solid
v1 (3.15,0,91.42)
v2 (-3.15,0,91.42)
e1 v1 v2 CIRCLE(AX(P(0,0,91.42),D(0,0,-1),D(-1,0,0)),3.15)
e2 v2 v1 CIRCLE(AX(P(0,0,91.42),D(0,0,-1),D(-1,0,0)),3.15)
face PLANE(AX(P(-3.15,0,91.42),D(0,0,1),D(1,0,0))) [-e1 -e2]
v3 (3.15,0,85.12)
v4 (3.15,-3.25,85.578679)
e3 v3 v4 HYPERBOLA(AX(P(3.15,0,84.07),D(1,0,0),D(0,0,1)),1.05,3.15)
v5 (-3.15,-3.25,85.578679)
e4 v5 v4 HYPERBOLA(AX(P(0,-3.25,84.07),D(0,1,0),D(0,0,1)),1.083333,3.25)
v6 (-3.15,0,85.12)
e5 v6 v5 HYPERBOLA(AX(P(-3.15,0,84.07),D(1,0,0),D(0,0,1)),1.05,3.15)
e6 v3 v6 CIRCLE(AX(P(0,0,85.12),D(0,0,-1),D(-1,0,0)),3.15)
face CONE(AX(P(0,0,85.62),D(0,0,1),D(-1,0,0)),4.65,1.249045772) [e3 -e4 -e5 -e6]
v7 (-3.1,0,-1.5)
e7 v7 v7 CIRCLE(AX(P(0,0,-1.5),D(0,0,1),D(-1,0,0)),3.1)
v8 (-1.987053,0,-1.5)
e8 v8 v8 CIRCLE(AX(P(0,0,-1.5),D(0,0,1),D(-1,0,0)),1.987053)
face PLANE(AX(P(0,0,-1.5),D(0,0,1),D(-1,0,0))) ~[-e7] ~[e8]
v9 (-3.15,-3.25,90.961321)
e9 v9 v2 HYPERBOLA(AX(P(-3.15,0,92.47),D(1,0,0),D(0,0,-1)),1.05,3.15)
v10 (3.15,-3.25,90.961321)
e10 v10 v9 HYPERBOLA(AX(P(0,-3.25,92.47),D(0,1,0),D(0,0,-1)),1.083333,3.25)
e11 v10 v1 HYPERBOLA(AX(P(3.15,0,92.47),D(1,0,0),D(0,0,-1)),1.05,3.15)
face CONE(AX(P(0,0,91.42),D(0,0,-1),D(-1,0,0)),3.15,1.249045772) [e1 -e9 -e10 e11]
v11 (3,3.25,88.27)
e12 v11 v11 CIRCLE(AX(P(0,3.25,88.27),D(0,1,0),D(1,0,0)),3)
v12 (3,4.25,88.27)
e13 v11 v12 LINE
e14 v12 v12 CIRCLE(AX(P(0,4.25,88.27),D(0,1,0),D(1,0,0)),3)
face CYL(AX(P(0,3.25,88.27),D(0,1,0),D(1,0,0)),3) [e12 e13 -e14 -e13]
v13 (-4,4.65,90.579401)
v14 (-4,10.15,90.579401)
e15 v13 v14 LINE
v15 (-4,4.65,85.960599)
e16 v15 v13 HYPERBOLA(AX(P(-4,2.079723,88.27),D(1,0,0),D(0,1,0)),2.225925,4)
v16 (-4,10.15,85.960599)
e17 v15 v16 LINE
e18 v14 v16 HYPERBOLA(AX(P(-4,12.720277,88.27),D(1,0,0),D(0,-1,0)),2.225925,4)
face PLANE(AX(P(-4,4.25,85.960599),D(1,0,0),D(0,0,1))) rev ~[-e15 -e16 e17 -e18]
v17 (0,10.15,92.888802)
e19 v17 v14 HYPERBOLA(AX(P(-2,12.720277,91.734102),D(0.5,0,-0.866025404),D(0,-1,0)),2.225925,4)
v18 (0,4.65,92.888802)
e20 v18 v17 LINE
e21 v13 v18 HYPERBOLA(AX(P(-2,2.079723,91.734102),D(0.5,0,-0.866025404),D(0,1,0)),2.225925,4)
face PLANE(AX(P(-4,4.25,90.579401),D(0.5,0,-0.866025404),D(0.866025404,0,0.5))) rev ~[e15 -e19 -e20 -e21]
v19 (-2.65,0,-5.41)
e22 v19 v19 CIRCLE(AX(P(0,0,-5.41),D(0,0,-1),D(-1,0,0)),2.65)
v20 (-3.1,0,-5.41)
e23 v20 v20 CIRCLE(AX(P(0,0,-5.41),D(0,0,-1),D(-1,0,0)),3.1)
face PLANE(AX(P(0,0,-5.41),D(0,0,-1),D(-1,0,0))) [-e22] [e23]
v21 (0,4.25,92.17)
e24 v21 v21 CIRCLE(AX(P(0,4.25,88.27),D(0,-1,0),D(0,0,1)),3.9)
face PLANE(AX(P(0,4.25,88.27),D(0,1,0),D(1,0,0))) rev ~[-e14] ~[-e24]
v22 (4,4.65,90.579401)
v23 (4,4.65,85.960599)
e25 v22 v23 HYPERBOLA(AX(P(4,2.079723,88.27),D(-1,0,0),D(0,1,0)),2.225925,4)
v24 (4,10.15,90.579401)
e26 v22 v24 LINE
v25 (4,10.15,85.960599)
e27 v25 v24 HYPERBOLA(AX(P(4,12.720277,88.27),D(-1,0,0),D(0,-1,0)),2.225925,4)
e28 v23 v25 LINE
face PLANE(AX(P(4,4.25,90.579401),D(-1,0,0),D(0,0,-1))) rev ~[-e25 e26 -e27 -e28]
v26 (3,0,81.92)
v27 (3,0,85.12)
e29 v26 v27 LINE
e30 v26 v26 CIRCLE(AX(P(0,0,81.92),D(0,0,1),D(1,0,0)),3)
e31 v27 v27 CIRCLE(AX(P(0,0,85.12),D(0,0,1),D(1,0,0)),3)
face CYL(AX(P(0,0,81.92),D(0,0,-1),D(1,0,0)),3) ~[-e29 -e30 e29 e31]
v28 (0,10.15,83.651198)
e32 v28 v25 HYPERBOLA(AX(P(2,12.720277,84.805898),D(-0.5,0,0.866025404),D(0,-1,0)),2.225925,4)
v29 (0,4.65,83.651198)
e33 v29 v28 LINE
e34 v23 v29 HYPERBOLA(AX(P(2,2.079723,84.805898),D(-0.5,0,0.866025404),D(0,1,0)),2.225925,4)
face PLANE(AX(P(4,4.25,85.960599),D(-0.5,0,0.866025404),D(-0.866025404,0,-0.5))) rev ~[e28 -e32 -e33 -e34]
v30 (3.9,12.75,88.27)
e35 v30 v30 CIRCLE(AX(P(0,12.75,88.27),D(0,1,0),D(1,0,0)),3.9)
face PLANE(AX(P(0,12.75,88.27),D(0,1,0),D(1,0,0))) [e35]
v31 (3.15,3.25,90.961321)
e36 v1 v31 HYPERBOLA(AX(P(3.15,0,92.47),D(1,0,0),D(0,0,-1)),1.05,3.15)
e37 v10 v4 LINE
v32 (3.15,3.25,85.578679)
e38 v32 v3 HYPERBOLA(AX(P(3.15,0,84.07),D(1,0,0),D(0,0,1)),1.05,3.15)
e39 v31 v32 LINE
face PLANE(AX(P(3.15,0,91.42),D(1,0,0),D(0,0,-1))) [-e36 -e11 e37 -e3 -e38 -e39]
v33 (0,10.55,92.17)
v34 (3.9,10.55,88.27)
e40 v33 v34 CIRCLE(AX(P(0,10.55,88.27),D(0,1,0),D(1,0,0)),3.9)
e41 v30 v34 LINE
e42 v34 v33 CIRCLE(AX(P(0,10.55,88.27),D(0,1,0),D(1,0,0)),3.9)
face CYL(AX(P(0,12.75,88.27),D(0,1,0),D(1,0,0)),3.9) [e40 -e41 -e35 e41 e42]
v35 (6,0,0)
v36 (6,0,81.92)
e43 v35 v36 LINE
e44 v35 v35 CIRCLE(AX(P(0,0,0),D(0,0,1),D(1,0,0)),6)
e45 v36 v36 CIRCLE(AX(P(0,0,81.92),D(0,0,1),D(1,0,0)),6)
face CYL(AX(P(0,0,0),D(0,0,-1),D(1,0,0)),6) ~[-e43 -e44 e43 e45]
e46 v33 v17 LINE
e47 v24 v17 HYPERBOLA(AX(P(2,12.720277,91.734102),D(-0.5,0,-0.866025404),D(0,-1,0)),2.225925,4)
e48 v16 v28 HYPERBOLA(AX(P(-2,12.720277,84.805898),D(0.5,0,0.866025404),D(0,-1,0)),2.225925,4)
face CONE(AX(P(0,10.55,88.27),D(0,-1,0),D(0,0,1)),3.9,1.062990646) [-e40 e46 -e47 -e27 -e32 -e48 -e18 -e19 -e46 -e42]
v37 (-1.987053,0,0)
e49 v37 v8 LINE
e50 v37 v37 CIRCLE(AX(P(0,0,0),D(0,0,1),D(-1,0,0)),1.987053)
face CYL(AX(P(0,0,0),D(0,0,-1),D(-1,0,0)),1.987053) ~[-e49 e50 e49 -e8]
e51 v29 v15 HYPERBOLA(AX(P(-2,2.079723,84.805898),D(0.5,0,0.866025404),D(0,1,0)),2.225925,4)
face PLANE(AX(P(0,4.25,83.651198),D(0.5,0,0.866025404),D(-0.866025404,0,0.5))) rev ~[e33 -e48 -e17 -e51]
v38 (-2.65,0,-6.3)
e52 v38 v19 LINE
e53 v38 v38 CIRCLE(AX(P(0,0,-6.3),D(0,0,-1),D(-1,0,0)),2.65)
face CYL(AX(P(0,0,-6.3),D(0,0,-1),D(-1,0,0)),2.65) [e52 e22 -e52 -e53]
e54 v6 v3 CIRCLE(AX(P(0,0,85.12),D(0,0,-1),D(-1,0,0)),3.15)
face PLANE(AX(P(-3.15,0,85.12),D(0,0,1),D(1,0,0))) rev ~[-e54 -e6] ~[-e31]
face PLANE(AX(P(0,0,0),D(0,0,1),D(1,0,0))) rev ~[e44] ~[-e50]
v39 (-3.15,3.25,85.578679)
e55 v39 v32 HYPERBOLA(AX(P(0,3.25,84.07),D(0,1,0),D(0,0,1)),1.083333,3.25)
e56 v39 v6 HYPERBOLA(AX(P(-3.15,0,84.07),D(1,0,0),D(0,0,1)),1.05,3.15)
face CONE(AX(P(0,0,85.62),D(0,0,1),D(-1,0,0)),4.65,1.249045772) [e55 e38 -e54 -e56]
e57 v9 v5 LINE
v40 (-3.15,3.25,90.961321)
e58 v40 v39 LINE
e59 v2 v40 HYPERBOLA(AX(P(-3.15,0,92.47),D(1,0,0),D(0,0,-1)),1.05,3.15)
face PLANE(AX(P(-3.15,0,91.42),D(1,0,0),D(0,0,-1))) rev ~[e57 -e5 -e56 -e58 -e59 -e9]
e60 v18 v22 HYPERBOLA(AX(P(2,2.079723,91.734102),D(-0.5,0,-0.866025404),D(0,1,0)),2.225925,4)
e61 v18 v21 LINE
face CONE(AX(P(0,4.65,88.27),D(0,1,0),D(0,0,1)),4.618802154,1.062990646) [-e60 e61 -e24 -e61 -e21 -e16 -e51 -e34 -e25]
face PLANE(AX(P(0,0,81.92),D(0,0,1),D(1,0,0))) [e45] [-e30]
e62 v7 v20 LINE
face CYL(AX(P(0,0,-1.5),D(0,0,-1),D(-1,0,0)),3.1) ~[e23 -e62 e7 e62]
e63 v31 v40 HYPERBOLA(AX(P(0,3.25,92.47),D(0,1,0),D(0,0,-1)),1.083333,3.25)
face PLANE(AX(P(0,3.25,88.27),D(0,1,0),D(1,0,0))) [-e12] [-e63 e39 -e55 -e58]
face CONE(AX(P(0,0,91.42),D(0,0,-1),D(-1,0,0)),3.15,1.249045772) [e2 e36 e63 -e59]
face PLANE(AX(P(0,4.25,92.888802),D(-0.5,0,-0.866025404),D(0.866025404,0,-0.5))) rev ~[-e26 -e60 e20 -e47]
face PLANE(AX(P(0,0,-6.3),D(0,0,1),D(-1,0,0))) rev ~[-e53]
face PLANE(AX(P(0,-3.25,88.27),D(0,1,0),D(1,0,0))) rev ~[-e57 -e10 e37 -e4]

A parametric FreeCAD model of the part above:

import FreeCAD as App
import Part
import Sketcher
Q = App.Units.Quantity

doc = App.newDocument("Part")
params = doc.addObject("Spreadsheet::Sheet", "Params")
for row, (alias, value) in enumerate([
    ("sketch1_diameter", "12 mm"),
    ("pad1_length", "81.92 mm"),
    ("sketch2_width", "3.1 mm"),
    ("sketch2_height", "1.5 mm"),
    ("sketch2_height2", "6.3 mm"),
    ("revolution_angle", "360 deg"),
    ("sketch3_diameter", "6 mm"),
    ("pad2_length", "3.2 mm"),
    ("sketch4_width", "6.3 mm"),
    ("pad3_length", "6.5 mm"),
    ("sketch5_width", "1.5 mm"),
    ("sketch5_height", "0.5 mm"),
    ("groove_angle", "360 deg"),
    ("sketch6_diameter", "6 mm"),
    ("pad4_length", "2 mm"),
    ("pad5_length", "8.5 mm"),
    ("sketch8_diameter", "7.8 mm"),
    ("pocket1_length", "2.2 mm"),
    ("sketch9_width", "0.4 mm"),
    ("sketch9_width2", "6.3 mm"),
    ("groove2_angle", "360 deg"),
    ("sketch10_diameter", "5.3 mm"),
    ("pocket2_length", "0.89 mm"),
], start=1):
    params.set(f"A{row}", alias)
    params.set(f"B{row}", "=" + value)
    params.setAlias(f"B{row}", alias)

body = doc.addObject("PartDesign::Body", "Body")

# Sketch on XY plane
sketch1 = doc.addObject("Sketcher::SketchObject", "Sketch")
body.addObject(sketch1)
sketch1.AttachmentSupport = (doc.XY_Plane, [""])
sketch1.MapMode = "FlatFace"
sketch1.addGeometry(Part.Circle(App.Vector(0, 0, 0), App.Vector(0, 0, 1), 6), False)
sketch1.addConstraint([
    Sketcher.Constraint("Coincident", 0, 3, -1, 1),
    Sketcher.Constraint("Diameter", 0, Q("12 mm")),
])
sketch1.setExpression("Constraints[1]", "Params.sketch1_diameter")
pad1 = doc.addObject("PartDesign::Pad", "Pad")
body.addObject(pad1)
pad1.Profile = sketch1
pad1.setExpression("Length", "Params.pad1_length")

# Sketch on XZ plane
sketch2 = doc.addObject("Sketcher::SketchObject", "Sketch001")
body.addObject(sketch2)
sketch2.AttachmentSupport = (doc.XZ_Plane, [""])
sketch2.MapMode = "FlatFace"
sketch2.addGeometry([
    Part.LineSegment(App.Vector(-1.987053, -1.5, 0), App.Vector(-1.987053, 0, 0)),  # 0
    Part.LineSegment(App.Vector(-1.987053, 0, 0), App.Vector(0, 0, 0)),  # 1
    Part.LineSegment(App.Vector(0, 0, 0), App.Vector(0, -6.3, 0)),  # 2
    Part.LineSegment(App.Vector(0, -6.3, 0), App.Vector(-3.1, -6.3, 0)),  # 3
    Part.LineSegment(App.Vector(-3.1, -6.3, 0), App.Vector(-3.1, -1.5, 0)),  # 4
    Part.LineSegment(App.Vector(-3.1, -1.5, 0), App.Vector(-1.987053, -1.5, 0)),  # 5
], False)
sketch2.addConstraint([
    Sketcher.Constraint("Coincident", 0, 2, 1, 1),
    Sketcher.Constraint("Coincident", 1, 2, 2, 1),
    Sketcher.Constraint("Coincident", 2, 2, 3, 1),
    Sketcher.Constraint("Coincident", 3, 2, 4, 1),
    Sketcher.Constraint("Coincident", 4, 2, 5, 1),
    Sketcher.Constraint("Coincident", 5, 2, 0, 1),
    Sketcher.Constraint("Vertical", 0),
    Sketcher.Constraint("Horizontal", 1),
    Sketcher.Constraint("Vertical", 2),
    Sketcher.Constraint("Horizontal", 3),
    Sketcher.Constraint("Vertical", 4),
    Sketcher.Constraint("Horizontal", 5),
    Sketcher.Constraint("Coincident", 1, 2, -1, 1),
    Sketcher.Constraint("DistanceX", 3, 2, 3, 1, Q("3.1 mm")),
    Sketcher.Constraint("DistanceY", 0, 1, 0, 2, Q("1.5 mm")),
    Sketcher.Constraint("DistanceY", 2, 2, 2, 1, Q("6.3 mm")),
    Sketcher.Constraint("DistanceX", 1, 1, 1, 2, Q("1.987053 mm")),
])
sketch2.setExpression("Constraints[13]", "Params.sketch2_width")
sketch2.setExpression("Constraints[14]", "Params.sketch2_height")
sketch2.setExpression("Constraints[15]", "Params.sketch2_height2")
revolution = doc.addObject("PartDesign::Revolution", "Revolution")
body.addObject(revolution)
revolution.Profile = sketch2
revolution.ReferenceAxis = (sketch2, ["V_Axis"])
revolution.setExpression("Angle", "Params.revolution_angle")

# Sketch on XY plane
sketch3 = doc.addObject("Sketcher::SketchObject", "Sketch002")
body.addObject(sketch3)
sketch3.AttachmentSupport = (doc.XY_Plane, [""])
sketch3.MapMode = "FlatFace"
sketch3.AttachmentOffset = App.Placement(App.Vector(0, 0, 81.92), App.Rotation())
sketch3.addGeometry(Part.Circle(App.Vector(0, 0, 0), App.Vector(0, 0, 1), 3), False)
sketch3.addConstraint([
    Sketcher.Constraint("Coincident", 0, 3, -1, 1),
    Sketcher.Constraint("Diameter", 0, Q("6 mm")),
])
sketch3.setExpression("Constraints[1]", "Params.sketch3_diameter")
pad2 = doc.addObject("PartDesign::Pad", "Pad001")
body.addObject(pad2)
pad2.Profile = sketch3
pad2.setExpression("Length", "Params.pad2_length")

# Sketch on XZ plane
sketch4 = doc.addObject("Sketcher::SketchObject", "Sketch003")
body.addObject(sketch4)
sketch4.AttachmentSupport = (doc.XZ_Plane, [""])
sketch4.MapMode = "FlatFace"
sketch4.addGeometry([
    Part.LineSegment(App.Vector(-3.15, 85.12, 0), App.Vector(-3.15, 91.42, 0)),
    Part.LineSegment(App.Vector(-3.15, 91.42, 0), App.Vector(3.15, 91.42, 0)),
    Part.LineSegment(App.Vector(3.15, 91.42, 0), App.Vector(3.15, 85.12, 0)),
    Part.LineSegment(App.Vector(3.15, 85.12, 0), App.Vector(-3.15, 85.12, 0)),
], False)
sketch4.addConstraint([
    Sketcher.Constraint("Coincident", 0, 2, 1, 1),
    Sketcher.Constraint("Coincident", 1, 2, 2, 1),
    Sketcher.Constraint("Coincident", 2, 2, 3, 1),
    Sketcher.Constraint("Coincident", 3, 2, 0, 1),
    Sketcher.Constraint("Vertical", 0),
    Sketcher.Constraint("Horizontal", 1),
    Sketcher.Constraint("Vertical", 2),
    Sketcher.Constraint("Horizontal", 3),
    Sketcher.Constraint("Equal", 3, 0),
    Sketcher.Constraint("DistanceX", 1, 1, 1, 2, Q("6.3 mm")),
    Sketcher.Constraint("DistanceX", 0, 2, -1, 1, Q("3.15 mm")),
    Sketcher.Constraint("DistanceY", -1, 1, 0, 2, Q("91.42 mm")),
])
sketch4.setExpression("Constraints[9]", "Params.sketch4_width")
pad3 = doc.addObject("PartDesign::Pad", "Pad002")
body.addObject(pad3)
pad3.Profile = sketch4
pad3.setExpression("Length", "Params.pad3_length")
pad3.Midplane = True

# Sketch on XZ plane
sketch5 = doc.addObject("Sketcher::SketchObject", "Sketch004")
body.addObject(sketch5)
sketch5.AttachmentSupport = (doc.XZ_Plane, [""])
sketch5.MapMode = "FlatFace"
sketch5.addGeometry([
    Part.LineSegment(App.Vector(-3.15, 91.42, 0), App.Vector(-4.65, 90.92, 0)),  # 0
    Part.LineSegment(App.Vector(-4.65, 90.92, 0), App.Vector(-4.65, 91.42, 0)),  # 1
    Part.LineSegment(App.Vector(-4.65, 91.42, 0), App.Vector(-3.15, 91.42, 0)),  # 2
    Part.LineSegment(App.Vector(-3.15, 85.12, 0), App.Vector(-4.65, 85.12, 0)),  # 3
    Part.LineSegment(App.Vector(-4.65, 85.12, 0), App.Vector(-4.65, 85.62, 0)),  # 4
    Part.LineSegment(App.Vector(-4.65, 85.62, 0), App.Vector(-3.15, 85.12, 0)),  # 5
], False)
sketch5.addConstraint([
    Sketcher.Constraint("Coincident", 0, 2, 1, 1),
    Sketcher.Constraint("Coincident", 1, 2, 2, 1),
    Sketcher.Constraint("Coincident", 2, 2, 0, 1),
    Sketcher.Constraint("Coincident", 3, 2, 4, 1),
    Sketcher.Constraint("Coincident", 4, 2, 5, 1),
    Sketcher.Constraint("Coincident", 5, 2, 3, 1),
    Sketcher.Constraint("Vertical", 1),
    Sketcher.Constraint("Horizontal", 2),
    Sketcher.Constraint("Horizontal", 3),
    Sketcher.Constraint("Vertical", 4),
    Sketcher.Constraint("Vertical", 1, 2, 3, 2),
    Sketcher.Constraint("Vertical", 2, 2, 5, 2),
    Sketcher.Constraint("Equal", 1, 4),
    Sketcher.Constraint("DistanceX", 2, 1, 2, 2, Q("1.5 mm")),
    Sketcher.Constraint("DistanceY", 1, 1, 1, 2, Q("0.5 mm")),
    Sketcher.Constraint("DistanceY", 3, 2, 0, 2, Q("5.8 mm")),
    Sketcher.Constraint("DistanceX", 0, 2, -1, 1, Q("4.65 mm")),
    Sketcher.Constraint("DistanceY", -1, 1, 0, 2, Q("90.92 mm")),
])
sketch5.setExpression("Constraints[13]", "Params.sketch5_width")
sketch5.setExpression("Constraints[14]", "Params.sketch5_height")
groove = doc.addObject("PartDesign::Groove", "Groove")
body.addObject(groove)
groove.Profile = sketch5
groove.ReferenceAxis = (sketch5, ["V_Axis"])
groove.setExpression("Angle", "Params.groove_angle")

# Sketch on XZ plane
sketch6 = doc.addObject("Sketcher::SketchObject", "Sketch005")
body.addObject(sketch6)
sketch6.AttachmentSupport = (doc.XZ_Plane, [""])
sketch6.MapMode = "FlatFace"
sketch6.AttachmentOffset = App.Placement(App.Vector(0, 0, -3.25), App.Rotation())
sketch6.addGeometry(Part.Circle(App.Vector(0, 88.27, 0), App.Vector(0, 0, 1), 3), False)
sketch6.addConstraint([
    Sketcher.Constraint("PointOnObject", 0, 3, -2),
    Sketcher.Constraint("Diameter", 0, Q("6 mm")),
    Sketcher.Constraint("DistanceY", -1, 1, 0, 3, Q("88.27 mm")),
])
sketch6.setExpression("Constraints[1]", "Params.sketch6_diameter")
pad4 = doc.addObject("PartDesign::Pad", "Pad003")
body.addObject(pad4)
pad4.Profile = sketch6
pad4.setExpression("Length", "Params.pad4_length")
pad4.Midplane = True

# Sketch on XZ plane
sketch7 = doc.addObject("Sketcher::SketchObject", "Sketch006")
body.addObject(sketch7)
sketch7.AttachmentSupport = (doc.XZ_Plane, [""])
sketch7.MapMode = "FlatFace"
sketch7.AttachmentOffset = App.Placement(App.Vector(0, 0, -4.25), App.Rotation())
sketch7.addGeometry([
    Part.LineSegment(App.Vector(0, 83.651198, 0), App.Vector(-4, 85.960599, 0)),  # 0
    Part.LineSegment(App.Vector(-4, 85.960599, 0), App.Vector(-4, 90.579401, 0)),  # 1
    Part.LineSegment(App.Vector(-4, 90.579401, 0), App.Vector(0, 92.888802, 0)),  # 2
    Part.LineSegment(App.Vector(0, 92.888802, 0), App.Vector(4, 90.579401, 0)),  # 3
    Part.LineSegment(App.Vector(4, 90.579401, 0), App.Vector(4, 85.960599, 0)),  # 4
    Part.LineSegment(App.Vector(4, 85.960599, 0), App.Vector(0, 83.651198, 0)),  # 5
], False)
sketch7.addConstraint([
    Sketcher.Constraint("Coincident", 0, 2, 1, 1),
    Sketcher.Constraint("Coincident", 1, 2, 2, 1),
    Sketcher.Constraint("Coincident", 2, 2, 3, 1),
    Sketcher.Constraint("Coincident", 3, 2, 4, 1),
    Sketcher.Constraint("Coincident", 4, 2, 5, 1),
    Sketcher.Constraint("Coincident", 5, 2, 0, 1),
    Sketcher.Constraint("Vertical", 1),
    Sketcher.Constraint("Vertical", 4),
    Sketcher.Constraint("Symmetric", 1, 2, 3, 2, -2),
    Sketcher.Constraint("PointOnObject", 2, 2, -2),
    Sketcher.Constraint("PointOnObject", 5, 2, -2),
    Sketcher.Constraint("Parallel", 0, 3),
    Sketcher.Constraint("Parallel", 2, 5),
    Sketcher.Constraint("Angle", 0, Q("150 deg")),
    Sketcher.Constraint("DistanceX", 0, 2, -1, 1, Q("4 mm")),
    Sketcher.Constraint("DistanceY", -1, 1, 0, 2, Q("85.960599 mm")),
    Sketcher.Constraint("DistanceY", -1, 1, 1, 2, Q("90.579401 mm")),
])
pad5 = doc.addObject("PartDesign::Pad", "Pad004")
body.addObject(pad5)
pad5.Profile = sketch7
pad5.setExpression("Length", "Params.pad5_length")
pad5.Reversed = True

# Sketch on XZ plane
sketch8 = doc.addObject("Sketcher::SketchObject", "Sketch007")
body.addObject(sketch8)
sketch8.AttachmentSupport = (doc.XZ_Plane, [""])
sketch8.MapMode = "FlatFace"
sketch8.AttachmentOffset = App.Placement(App.Vector(0, 0, -12.75), App.Rotation())
sketch8.addGeometry([
    Part.Circle(App.Vector(0, 88.27, 0), App.Vector(0, 0, 1), 5.645732),
    Part.Circle(App.Vector(0, 88.27, 0), App.Vector(0, 0, 1), 3.9),
], False)
sketch8.addConstraint([
    Sketcher.Constraint("Coincident", 1, 3, 0, 3),
    Sketcher.Constraint("PointOnObject", 0, 3, -2),
    Sketcher.Constraint("Diameter", 1, Q("7.8 mm")),
    Sketcher.Constraint("DistanceY", -1, 1, 0, 3, Q("88.27 mm")),
    Sketcher.Constraint("Diameter", 0, Q("11.291463 mm")),
])
sketch8.setExpression("Constraints[2]", "Params.sketch8_diameter")
pocket1 = doc.addObject("PartDesign::Pocket", "Pocket")
body.addObject(pocket1)
pocket1.Profile = sketch8
pocket1.setExpression("Length", "Params.pocket1_length")
pocket1.Reversed = True

# Sketch on YZ plane
sketch9 = doc.addObject("Sketcher::SketchObject", "Sketch008")
body.addObject(sketch9)
sketch9.AttachmentSupport = (doc.YZ_Plane, [""])
sketch9.MapMode = "FlatFace"
sketch9.addGeometry([
    Part.LineSegment(App.Vector(10.15, 92.888802, 0), App.Vector(10.55, 92.17, 0)),  # 0
    Part.LineSegment(App.Vector(10.55, 92.17, 0), App.Vector(10.55, 92.888802, 0)),  # 1
    Part.LineSegment(App.Vector(10.55, 92.888802, 0), App.Vector(10.15, 92.888802, 0)),  # 2
    Part.LineSegment(App.Vector(4.25, 92.17, 0), App.Vector(4.65, 92.888802, 0)),  # 3
    Part.LineSegment(App.Vector(4.65, 92.888802, 0), App.Vector(4.25, 92.888802, 0)),  # 4
    Part.LineSegment(App.Vector(4.25, 92.888802, 0), App.Vector(4.25, 92.17, 0)),  # 5
], False)
sketch9.addGeometry(Part.LineSegment(App.Vector(10.55, 88.27, 0), App.Vector(4.25, 88.27, 0)), True)  # axis
sketch9.addConstraint([
    Sketcher.Constraint("Coincident", 0, 2, 1, 1),
    Sketcher.Constraint("Coincident", 1, 2, 2, 1),
    Sketcher.Constraint("Coincident", 2, 2, 0, 1),
    Sketcher.Constraint("Coincident", 3, 2, 4, 1),
    Sketcher.Constraint("Coincident", 4, 2, 5, 1),
    Sketcher.Constraint("Coincident", 5, 2, 3, 1),
    Sketcher.Constraint("Vertical", 1),
    Sketcher.Constraint("Horizontal", 2),
    Sketcher.Constraint("Horizontal", 4),
    Sketcher.Constraint("Vertical", 5),
    Sketcher.Constraint("Horizontal", 6),
    Sketcher.Constraint("Horizontal", 2, 2, 3, 2),
    Sketcher.Constraint("Horizontal", 0, 2, 5, 2),
    Sketcher.Constraint("Vertical", 1, 2, 6, 1),
    Sketcher.Constraint("Vertical", 5, 2, 6, 2),
    Sketcher.Constraint("Equal", 2, 4),
    Sketcher.Constraint("DistanceX", 2, 2, 2, 1, Q("0.4 mm")),
    Sketcher.Constraint("DistanceX", 6, 2, 6, 1, Q("6.3 mm")),
    Sketcher.Constraint("DistanceY", 6, 1, 0, 2, Q("3.9 mm")),
    Sketcher.Constraint("DistanceX", -1, 1, 0, 2, Q("10.55 mm")),
    Sketcher.Constraint("DistanceY", -1, 1, 0, 2, Q("92.17 mm")),
    Sketcher.Constraint("DistanceY", 1, 1, 1, 2, Q("0.718802 mm")),
])
sketch9.setExpression("Constraints[16]", "Params.sketch9_width")
sketch9.setExpression("Constraints[17]", "Params.sketch9_width2")
groove2 = doc.addObject("PartDesign::Groove", "Groove001")
body.addObject(groove2)
groove2.Profile = sketch9
groove2.ReferenceAxis = (sketch9, ["Axis0"])
groove2.setExpression("Angle", "Params.groove2_angle")

# Sketch on XY plane
sketch10 = doc.addObject("Sketcher::SketchObject", "Sketch009")
body.addObject(sketch10)
sketch10.AttachmentSupport = (doc.XY_Plane, [""])
sketch10.MapMode = "FlatFace"
sketch10.AttachmentOffset = App.Placement(App.Vector(0, 0, -6.3), App.Rotation())
sketch10.addGeometry([
    Part.Circle(App.Vector(0, 0, 0), App.Vector(0, 0, 1), 3.959835),
    Part.Circle(App.Vector(0, 0, 0), App.Vector(0, 0, 1), 2.65),
], False)
sketch10.addConstraint([
    Sketcher.Constraint("Coincident", 0, 3, -1, 1),
    Sketcher.Constraint("Coincident", 1, 3, -1, 1),
    Sketcher.Constraint("Diameter", 1, Q("5.3 mm")),
    Sketcher.Constraint("Diameter", 0, Q("7.91967 mm")),
])
sketch10.setExpression("Constraints[2]", "Params.sketch10_diameter")
pocket2 = doc.addObject("PartDesign::Pocket", "Pocket001")
body.addObject(pocket2)
pocket2.Profile = sketch10
pocket2.setExpression("Length", "Params.pocket2_length")
pocket2.Reversed = True

doc.recompute()
